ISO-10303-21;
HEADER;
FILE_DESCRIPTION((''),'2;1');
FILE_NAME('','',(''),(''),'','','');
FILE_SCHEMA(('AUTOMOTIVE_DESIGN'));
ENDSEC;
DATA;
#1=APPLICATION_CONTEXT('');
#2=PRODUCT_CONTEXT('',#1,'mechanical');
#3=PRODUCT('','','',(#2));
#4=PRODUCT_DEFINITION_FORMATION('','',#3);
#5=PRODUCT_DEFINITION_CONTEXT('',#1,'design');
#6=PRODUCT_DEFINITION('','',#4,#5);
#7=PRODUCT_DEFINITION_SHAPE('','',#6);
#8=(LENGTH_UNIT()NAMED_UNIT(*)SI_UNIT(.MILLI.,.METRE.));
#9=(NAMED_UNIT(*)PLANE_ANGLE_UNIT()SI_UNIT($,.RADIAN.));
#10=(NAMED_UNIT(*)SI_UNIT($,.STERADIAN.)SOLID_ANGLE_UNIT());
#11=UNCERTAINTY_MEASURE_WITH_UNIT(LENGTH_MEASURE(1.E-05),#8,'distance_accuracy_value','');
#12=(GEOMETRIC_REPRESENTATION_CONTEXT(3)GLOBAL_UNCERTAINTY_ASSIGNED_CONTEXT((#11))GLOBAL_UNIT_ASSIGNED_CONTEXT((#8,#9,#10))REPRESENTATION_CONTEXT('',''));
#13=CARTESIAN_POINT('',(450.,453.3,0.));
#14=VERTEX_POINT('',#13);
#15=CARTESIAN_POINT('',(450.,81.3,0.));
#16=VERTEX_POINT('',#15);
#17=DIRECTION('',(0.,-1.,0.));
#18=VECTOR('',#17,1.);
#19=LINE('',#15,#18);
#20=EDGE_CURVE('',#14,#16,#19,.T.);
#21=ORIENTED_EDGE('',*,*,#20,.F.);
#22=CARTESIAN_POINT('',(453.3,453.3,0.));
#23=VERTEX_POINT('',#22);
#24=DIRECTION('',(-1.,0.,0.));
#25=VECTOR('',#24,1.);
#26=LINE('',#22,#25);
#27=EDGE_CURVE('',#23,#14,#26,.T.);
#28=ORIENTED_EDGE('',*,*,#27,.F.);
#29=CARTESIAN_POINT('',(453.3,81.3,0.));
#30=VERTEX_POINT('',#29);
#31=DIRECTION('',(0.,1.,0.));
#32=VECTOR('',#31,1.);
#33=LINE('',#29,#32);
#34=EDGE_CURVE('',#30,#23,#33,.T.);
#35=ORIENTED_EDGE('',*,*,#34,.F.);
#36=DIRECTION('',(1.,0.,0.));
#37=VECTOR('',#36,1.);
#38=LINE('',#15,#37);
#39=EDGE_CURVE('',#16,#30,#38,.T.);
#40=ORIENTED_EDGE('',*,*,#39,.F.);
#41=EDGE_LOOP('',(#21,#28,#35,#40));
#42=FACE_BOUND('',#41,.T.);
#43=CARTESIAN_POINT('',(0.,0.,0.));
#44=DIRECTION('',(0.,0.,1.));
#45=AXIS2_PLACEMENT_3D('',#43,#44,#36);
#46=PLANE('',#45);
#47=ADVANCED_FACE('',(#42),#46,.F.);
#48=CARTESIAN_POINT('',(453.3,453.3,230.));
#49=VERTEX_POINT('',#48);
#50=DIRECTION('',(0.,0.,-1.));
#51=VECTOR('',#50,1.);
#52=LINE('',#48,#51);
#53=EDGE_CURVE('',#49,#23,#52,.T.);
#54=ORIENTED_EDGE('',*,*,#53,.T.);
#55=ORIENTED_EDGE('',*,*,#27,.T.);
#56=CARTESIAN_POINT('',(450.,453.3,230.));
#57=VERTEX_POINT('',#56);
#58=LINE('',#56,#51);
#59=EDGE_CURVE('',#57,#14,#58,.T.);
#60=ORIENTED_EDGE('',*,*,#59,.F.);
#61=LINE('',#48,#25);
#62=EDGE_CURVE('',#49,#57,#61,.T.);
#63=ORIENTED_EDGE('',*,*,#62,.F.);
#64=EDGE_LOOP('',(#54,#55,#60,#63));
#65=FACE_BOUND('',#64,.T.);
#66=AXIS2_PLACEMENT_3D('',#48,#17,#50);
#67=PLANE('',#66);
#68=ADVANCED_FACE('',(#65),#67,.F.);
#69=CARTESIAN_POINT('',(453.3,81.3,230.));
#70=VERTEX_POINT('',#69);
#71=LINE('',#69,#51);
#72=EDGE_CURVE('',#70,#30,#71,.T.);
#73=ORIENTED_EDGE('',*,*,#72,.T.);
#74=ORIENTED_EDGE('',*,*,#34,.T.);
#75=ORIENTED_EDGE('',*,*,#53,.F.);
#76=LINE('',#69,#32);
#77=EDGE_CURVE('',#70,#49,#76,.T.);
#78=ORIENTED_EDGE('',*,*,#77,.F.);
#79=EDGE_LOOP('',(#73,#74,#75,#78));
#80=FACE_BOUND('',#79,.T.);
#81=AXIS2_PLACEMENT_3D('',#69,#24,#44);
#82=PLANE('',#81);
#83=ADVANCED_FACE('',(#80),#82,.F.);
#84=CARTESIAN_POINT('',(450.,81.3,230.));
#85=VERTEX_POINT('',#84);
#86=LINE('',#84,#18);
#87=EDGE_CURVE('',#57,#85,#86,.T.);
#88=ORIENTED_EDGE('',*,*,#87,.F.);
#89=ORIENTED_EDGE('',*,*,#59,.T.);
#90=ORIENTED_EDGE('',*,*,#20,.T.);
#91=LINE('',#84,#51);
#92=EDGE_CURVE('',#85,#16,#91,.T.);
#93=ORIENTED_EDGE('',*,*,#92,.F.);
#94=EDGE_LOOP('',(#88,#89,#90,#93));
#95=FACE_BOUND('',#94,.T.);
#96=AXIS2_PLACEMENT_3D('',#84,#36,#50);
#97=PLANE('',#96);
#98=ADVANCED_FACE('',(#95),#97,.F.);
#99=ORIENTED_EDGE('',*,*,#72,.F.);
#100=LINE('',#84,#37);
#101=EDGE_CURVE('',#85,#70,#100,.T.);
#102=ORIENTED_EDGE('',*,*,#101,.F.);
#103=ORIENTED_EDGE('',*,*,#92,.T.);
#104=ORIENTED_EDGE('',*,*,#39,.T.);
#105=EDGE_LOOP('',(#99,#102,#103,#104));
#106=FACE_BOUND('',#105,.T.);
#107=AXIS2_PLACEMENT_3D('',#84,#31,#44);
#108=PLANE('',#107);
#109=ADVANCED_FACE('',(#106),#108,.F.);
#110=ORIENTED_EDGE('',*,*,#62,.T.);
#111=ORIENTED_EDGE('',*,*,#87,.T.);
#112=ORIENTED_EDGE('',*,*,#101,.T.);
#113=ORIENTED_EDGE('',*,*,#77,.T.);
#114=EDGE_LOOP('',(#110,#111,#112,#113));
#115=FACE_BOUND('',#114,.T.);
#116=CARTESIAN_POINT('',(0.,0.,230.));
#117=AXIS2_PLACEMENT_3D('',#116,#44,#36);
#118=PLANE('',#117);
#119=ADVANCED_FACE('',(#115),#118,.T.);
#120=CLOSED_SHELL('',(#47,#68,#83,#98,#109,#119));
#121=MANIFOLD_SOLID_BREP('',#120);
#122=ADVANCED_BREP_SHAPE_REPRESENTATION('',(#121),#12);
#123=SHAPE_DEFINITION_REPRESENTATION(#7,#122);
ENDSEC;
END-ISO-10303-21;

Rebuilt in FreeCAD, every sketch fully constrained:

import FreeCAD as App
import Part
import Sketcher

V = App.Vector


def add_polygon(sketch, points):
    """Adds a closed chain of lines whose ends are joined by coincident constraints."""
    first, n = sketch.GeometryCount, len(points)
    for a, b in zip(points, points[1:] + points[:1]):
        sketch.addGeometry(Part.LineSegment(App.Vector(*a, 0), App.Vector(*b, 0)), False)
    for i in range(n):
        sketch.addConstraint(Sketcher.Constraint("Coincident", first + i, 2, first + (i + 1) % n, 1))

doc = App.newDocument("Part")
params = doc.addObject("Spreadsheet::Sheet", "Params")
for row, (alias, value) in enumerate([
    ("sketch1_height", "372 mm"),
    ("sketch1_width", "3.3 mm"),
    ("pad1_length", "230 mm"),
], start=1):
    params.set(f"A{row}", alias)
    params.set(f"B{row}", "=" + value)
    params.setAlias(f"B{row}", alias)

body = doc.addObject("PartDesign::Body", "Body")

sketch1 = body.newObject("Sketcher::SketchObject", "Sketch")
sketch1.AttachmentSupport = (doc.getObject("XY_Plane"), [""])
sketch1.MapMode = "FlatFace"
add_polygon(sketch1, [(450, 453.3), (450, 81.3), (453.3, 81.3), (453.3, 453.3)])
sketch1.addConstraint([
    Sketcher.Constraint("Vertical", 0),
    Sketcher.Constraint("Horizontal", 1),
    Sketcher.Constraint("Vertical", 2),
    Sketcher.Constraint("Horizontal", 3),
    Sketcher.Constraint("DistanceY", 0, 2, 0, 1, 372.0),
    Sketcher.Constraint("DistanceX", 1, 1, 1, 2, 3.3),
    Sketcher.Constraint("DistanceX", -1, 1, 0, 2, 450.0),
    Sketcher.Constraint("DistanceY", -1, 1, 0, 2, 81.3),
])
sketch1.setExpression("Constraints[8]", "Params.sketch1_height")
sketch1.setExpression("Constraints[9]", "Params.sketch1_width")
pad1 = body.newObject("PartDesign::Pad", "Pad")
pad1.Profile = sketch1
pad1.setExpression("Length", "Params.pad1_length")

doc.recompute()
